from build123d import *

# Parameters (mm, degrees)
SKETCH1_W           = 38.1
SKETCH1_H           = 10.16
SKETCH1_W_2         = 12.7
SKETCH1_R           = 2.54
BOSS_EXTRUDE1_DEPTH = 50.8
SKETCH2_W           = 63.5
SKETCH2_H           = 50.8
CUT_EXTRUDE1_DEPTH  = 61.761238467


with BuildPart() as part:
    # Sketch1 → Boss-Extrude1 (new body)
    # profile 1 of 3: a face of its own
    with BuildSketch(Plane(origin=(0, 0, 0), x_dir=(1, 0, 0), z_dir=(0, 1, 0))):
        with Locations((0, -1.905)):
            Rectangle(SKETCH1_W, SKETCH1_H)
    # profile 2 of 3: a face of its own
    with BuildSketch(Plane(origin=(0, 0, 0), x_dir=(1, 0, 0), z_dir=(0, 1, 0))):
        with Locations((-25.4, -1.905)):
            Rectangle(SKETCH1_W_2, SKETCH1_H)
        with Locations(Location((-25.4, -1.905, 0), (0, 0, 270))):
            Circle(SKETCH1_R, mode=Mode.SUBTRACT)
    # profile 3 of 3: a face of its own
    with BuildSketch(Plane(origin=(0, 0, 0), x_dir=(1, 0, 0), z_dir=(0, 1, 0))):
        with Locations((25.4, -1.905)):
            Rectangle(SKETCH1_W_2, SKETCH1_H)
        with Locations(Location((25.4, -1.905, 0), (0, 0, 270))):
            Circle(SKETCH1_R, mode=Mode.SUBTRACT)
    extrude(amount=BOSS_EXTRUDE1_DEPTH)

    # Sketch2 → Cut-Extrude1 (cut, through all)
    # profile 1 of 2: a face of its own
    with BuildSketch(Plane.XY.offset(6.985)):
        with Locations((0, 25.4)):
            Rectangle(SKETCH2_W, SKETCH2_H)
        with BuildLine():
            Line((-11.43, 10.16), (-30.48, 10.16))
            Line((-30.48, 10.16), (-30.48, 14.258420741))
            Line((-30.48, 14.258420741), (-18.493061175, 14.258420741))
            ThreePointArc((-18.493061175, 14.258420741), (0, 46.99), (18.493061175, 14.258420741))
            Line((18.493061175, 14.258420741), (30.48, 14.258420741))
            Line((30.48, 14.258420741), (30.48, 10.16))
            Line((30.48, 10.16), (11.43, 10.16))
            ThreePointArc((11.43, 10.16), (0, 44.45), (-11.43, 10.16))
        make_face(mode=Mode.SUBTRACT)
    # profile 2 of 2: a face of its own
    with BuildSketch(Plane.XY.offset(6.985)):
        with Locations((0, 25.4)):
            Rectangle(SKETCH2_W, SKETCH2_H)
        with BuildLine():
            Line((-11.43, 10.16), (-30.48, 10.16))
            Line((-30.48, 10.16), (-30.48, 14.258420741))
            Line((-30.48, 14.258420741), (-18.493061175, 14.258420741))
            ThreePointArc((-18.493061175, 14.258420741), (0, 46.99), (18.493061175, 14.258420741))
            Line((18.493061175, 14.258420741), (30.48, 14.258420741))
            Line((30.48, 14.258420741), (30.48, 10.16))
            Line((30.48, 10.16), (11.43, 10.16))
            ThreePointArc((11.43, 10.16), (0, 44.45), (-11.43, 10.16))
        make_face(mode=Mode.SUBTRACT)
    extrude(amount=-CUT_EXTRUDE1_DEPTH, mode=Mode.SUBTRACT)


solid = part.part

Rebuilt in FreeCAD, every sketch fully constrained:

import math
import FreeCAD as App
import Part
import Sketcher

V = App.Vector
Q = App.Units.Quantity


def add_polygon(sketch, points):
    """Adds a closed chain of lines whose ends are joined by coincident constraints."""
    first, n = sketch.GeometryCount, len(points)
    for a, b in zip(points, points[1:] + points[:1]):
        sketch.addGeometry(Part.LineSegment(App.Vector(*a, 0), App.Vector(*b, 0)), False)
    for i in range(n):
        sketch.addConstraint(Sketcher.Constraint("Coincident", first + i, 2, first + (i + 1) % n, 1))

doc = App.newDocument("Part")
body = doc.addObject("PartDesign::Body", "Body")

# Sketch on XZ plane
sketch1 = doc.addObject("Sketcher::SketchObject", "Sketch")
body.addObject(sketch1)
sketch1.AttachmentSupport = (doc.XZ_Plane, [""])
sketch1.MapMode = "FlatFace"
add_polygon(sketch1, [(31.8, 7), (31.8, -3.2), (-31.8, -3.2), (-31.8, 7)])  # lines 0-3
sketch1.addGeometry(Part.Circle(V(-25.4, 1.9, 0), V(0, 0, 1), 2.5), False)  # 4
sketch1.addGeometry(Part.Circle(V(25.4, 1.9, 0), V(0, 0, 1), 2.5), False)  # 5
sketch1.addConstraint([
    Sketcher.Constraint("Vertical", 0),
    Sketcher.Constraint("Horizontal", 1),
    Sketcher.Constraint("Vertical", 2),
    Sketcher.Constraint("Horizontal", 3),
    Sketcher.Constraint("Equal", 4, 5),
    Sketcher.Constraint("Symmetric", 4, 3, 5, 3, -2),
    Sketcher.Constraint("Diameter", 4, Q("0.2 in")),
    Sketcher.Constraint("DistanceX", 1, 2, 1, 1, Q("2.5 in")),
    Sketcher.Constraint("DistanceY", 0, 2, 0, 1, Q("0.4 in")),
    Sketcher.Constraint("DistanceX", 4, 3, -1, 1, Q("1 in")),
    Sketcher.Constraint("DistanceY", 0, 2, 5, 3, Q("0.2 in")),
    Sketcher.Constraint("DistanceX", -1, 1, 0, 2, Q("1.25 in")),
    Sketcher.Constraint("DistanceY", -1, 1, 4, 3, Q("0.075 in")),
])
pad1 = doc.addObject("PartDesign::Pad", "Pad")
body.addObject(pad1)
pad1.Profile = sketch1
pad1.Length = Q("2 in")
pad1.Reversed = True

# Sketch on XY plane
sketch2 = doc.addObject("Sketcher::SketchObject", "Sketch001")
body.addObject(sketch2)
sketch2.AttachmentSupport = (doc.XY_Plane, [""])
sketch2.MapMode = "FlatFace"
sketch2.AttachmentOffset = App.Placement(V(0, 0, 0.275 * 25.4), App.Rotation())
add_polygon(sketch2, [(-31.8, 50.8), (-31.8, 0), (31.8, 0), (31.8, 50.8)])  # lines 0-3
sketch2.addGeometry(Part.ArcOfCircle(Part.Circle(V(0, 25.4, 0), V(0, 0, 1), 19.1), math.radians(-53), math.radians(233)), False)  # 4
sketch2.addGeometry(Part.LineSegment(V(-11.4, 10.2, 0), V(-30.5, 10.2, 0)), False)  # 5
sketch2.addGeometry(Part.LineSegment(V(-30.5, 10.2, 0), V(-30.5, 14.3, 0)), False)  # 6
sketch2.addGeometry(Part.LineSegment(V(-30.5, 14.3, 0), V(-18.5, 14.3, 0)), False)  # 7
sketch2.addGeometry(Part.ArcOfCircle(Part.Circle(V(0, 25.4, 0), V(0, 0, 1), 21.6), math.radians(-31), math.radians(211)), False)  # 8
sketch2.addGeometry(Part.LineSegment(V(18.5, 14.3, 0), V(30.5, 14.3, 0)), False)  # 9
sketch2.addGeometry(Part.LineSegment(V(30.5, 14.3, 0), V(30.5, 10.2, 0)), False)  # 10
sketch2.addGeometry(Part.LineSegment(V(30.5, 10.2, 0), V(11.4, 10.2, 0)), False)  # 11
sketch2.addConstraint([
    Sketcher.Constraint("Coincident", 4, 2, 5, 1),
    Sketcher.Constraint("Coincident", 5, 2, 6, 1),
    Sketcher.Constraint("Coincident", 6, 2, 7, 1),
    Sketcher.Constraint("Coincident", 7, 2, 8, 2),
    Sketcher.Constraint("Coincident", 8, 1, 9, 1),
    Sketcher.Constraint("Coincident", 9, 2, 10, 1),
    Sketcher.Constraint("Coincident", 10, 2, 11, 1),
    Sketcher.Constraint("Coincident", 11, 2, 4, 1),
    Sketcher.Constraint("Vertical", 0),
    Sketcher.Constraint("Horizontal", 1),
    Sketcher.Constraint("Vertical", 2),
    Sketcher.Constraint("Horizontal", 3),
    Sketcher.Constraint("Horizontal", 5),
    Sketcher.Constraint("Vertical", 6),
    Sketcher.Constraint("Horizontal", 7),
    Sketcher.Constraint("Horizontal", 9),
    Sketcher.Constraint("Vertical", 10),
    Sketcher.Constraint("Horizontal", 11),
    Sketcher.Constraint("Coincident", 8, 3, 4, 3),
    Sketcher.Constraint("Symmetric", 0, 2, 1, 2, -1, 1),
    Sketcher.Constraint("Symmetric", 7, 2, 8, 1, -2),
    Sketcher.Constraint("Symmetric", 5, 2, 10, 2, -2),
    Sketcher.Constraint("DistanceY", 0, 2, 0, 1, Q("2 in")),
    Sketcher.Constraint("Radius", 4, Q("0.75 in")),
    Sketcher.Constraint("Radius", 8, Q("0.85 in")),
    Sketcher.Constraint("DistanceX", 1, 1, 1, 2, Q("2.5 in")),
    Sketcher.Constraint("DistanceY", -1, 1, 4, 3, Q("1 in")),
    Sketcher.Constraint("DistanceX", 5, 2, 5, 1, Q("0.75 in")),
    Sketcher.Constraint("DistanceY", -1, 1, 4, 2, Q("0.4 in")),
    Sketcher.Constraint("DistanceX", 7, 1, 7, 2, Q("11.986939 mm")),
])
pocket1 = doc.addObject("PartDesign::Pocket", "Pocket")
body.addObject(pocket1)
pocket1.Profile = sketch2
pocket1.Length = 61.761238

doc.recompute()
